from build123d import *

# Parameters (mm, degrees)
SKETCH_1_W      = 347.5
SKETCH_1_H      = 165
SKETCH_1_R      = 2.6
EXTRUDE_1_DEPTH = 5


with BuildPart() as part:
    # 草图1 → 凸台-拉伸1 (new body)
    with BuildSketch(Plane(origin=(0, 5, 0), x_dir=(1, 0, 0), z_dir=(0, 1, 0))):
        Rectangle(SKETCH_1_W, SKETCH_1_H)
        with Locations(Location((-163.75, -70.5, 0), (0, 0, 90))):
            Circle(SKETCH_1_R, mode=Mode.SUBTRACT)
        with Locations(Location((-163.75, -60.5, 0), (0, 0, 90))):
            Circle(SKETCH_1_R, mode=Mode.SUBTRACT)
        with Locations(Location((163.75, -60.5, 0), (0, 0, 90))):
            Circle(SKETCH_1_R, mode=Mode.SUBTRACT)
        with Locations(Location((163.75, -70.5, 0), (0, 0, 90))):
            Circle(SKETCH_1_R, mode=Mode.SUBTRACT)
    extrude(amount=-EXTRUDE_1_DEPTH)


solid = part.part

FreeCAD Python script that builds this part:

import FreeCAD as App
import Part
import Sketcher

V = App.Vector


def add_polygon(sketch, points):
    """Adds a closed chain of lines whose ends are joined by coincident constraints."""
    first, n = sketch.GeometryCount, len(points)
    for a, b in zip(points, points[1:] + points[:1]):
        sketch.addGeometry(Part.LineSegment(App.Vector(*a, 0), App.Vector(*b, 0)), False)
    for i in range(n):
        sketch.addConstraint(Sketcher.Constraint("Coincident", first + i, 2, first + (i + 1) % n, 1))

doc = App.newDocument("Part")
body = doc.addObject("PartDesign::Body", "Body")

sketch1 = body.newObject("Sketcher::SketchObject", "Sketch")
sketch1.AttachmentSupport = (doc.getObject("XZ_Plane"), [""])
sketch1.MapMode = "FlatFace"
sketch1.AttachmentOffset = App.Placement(V(0, 0, -5), App.Rotation())
add_polygon(sketch1, [(-173.8, -82.5), (-173.8, 82.5), (173.8, 82.5), (173.8, -82.5)])
sketch1.addGeometry(Part.Circle(V(-163.8, 70.5, 0), V(0, 0, 1), 2.6), False)
sketch1.addGeometry(Part.Circle(V(163.8, 70.5, 0), V(0, 0, 1), 2.6), False)
sketch1.addGeometry(Part.Circle(V(-163.8, 60.5, 0), V(0, 0, 1), 2.6), False)
sketch1.addGeometry(Part.Circle(V(163.8, 60.5, 0), V(0, 0, 1), 2.6), False)
sketch1.addConstraint([
    Sketcher.Constraint("Vertical", 0),
    Sketcher.Constraint("Horizontal", 1),
    Sketcher.Constraint("Vertical", 2),
    Sketcher.Constraint("Horizontal", 3),
    Sketcher.Constraint("Equal", 4, 5),
    Sketcher.Constraint("Equal", 5, 6),
    Sketcher.Constraint("Equal", 6, 7),
    Sketcher.Constraint("Symmetric", 0, 2, 2, 2, -1, 1),
    Sketcher.Constraint("Symmetric", 4, 3, 5, 3, -2),
    Sketcher.Constraint("Symmetric", 6, 3, 7, 3, -2),
    Sketcher.Constraint("Vertical", 4, 3, 6, 3),
    Sketcher.Constraint("Diameter", 4, 5.2),
    Sketcher.Constraint("DistanceY", 0, 1, 0, 2, 165.0),
    Sketcher.Constraint("DistanceX", 1, 1, 1, 2, 347.5),
    Sketcher.Constraint("DistanceY", 6, 3, 4, 3, 10.0),
    Sketcher.Constraint("DistanceX", 0, 2, 4, 3, 10.0),
    Sketcher.Constraint("DistanceY", 4, 3, 0, 2, 12.0),
])
pad1 = body.newObject("PartDesign::Pad", "Pad")
pad1.Profile = sketch1
pad1.Length = 5

doc.recompute()
